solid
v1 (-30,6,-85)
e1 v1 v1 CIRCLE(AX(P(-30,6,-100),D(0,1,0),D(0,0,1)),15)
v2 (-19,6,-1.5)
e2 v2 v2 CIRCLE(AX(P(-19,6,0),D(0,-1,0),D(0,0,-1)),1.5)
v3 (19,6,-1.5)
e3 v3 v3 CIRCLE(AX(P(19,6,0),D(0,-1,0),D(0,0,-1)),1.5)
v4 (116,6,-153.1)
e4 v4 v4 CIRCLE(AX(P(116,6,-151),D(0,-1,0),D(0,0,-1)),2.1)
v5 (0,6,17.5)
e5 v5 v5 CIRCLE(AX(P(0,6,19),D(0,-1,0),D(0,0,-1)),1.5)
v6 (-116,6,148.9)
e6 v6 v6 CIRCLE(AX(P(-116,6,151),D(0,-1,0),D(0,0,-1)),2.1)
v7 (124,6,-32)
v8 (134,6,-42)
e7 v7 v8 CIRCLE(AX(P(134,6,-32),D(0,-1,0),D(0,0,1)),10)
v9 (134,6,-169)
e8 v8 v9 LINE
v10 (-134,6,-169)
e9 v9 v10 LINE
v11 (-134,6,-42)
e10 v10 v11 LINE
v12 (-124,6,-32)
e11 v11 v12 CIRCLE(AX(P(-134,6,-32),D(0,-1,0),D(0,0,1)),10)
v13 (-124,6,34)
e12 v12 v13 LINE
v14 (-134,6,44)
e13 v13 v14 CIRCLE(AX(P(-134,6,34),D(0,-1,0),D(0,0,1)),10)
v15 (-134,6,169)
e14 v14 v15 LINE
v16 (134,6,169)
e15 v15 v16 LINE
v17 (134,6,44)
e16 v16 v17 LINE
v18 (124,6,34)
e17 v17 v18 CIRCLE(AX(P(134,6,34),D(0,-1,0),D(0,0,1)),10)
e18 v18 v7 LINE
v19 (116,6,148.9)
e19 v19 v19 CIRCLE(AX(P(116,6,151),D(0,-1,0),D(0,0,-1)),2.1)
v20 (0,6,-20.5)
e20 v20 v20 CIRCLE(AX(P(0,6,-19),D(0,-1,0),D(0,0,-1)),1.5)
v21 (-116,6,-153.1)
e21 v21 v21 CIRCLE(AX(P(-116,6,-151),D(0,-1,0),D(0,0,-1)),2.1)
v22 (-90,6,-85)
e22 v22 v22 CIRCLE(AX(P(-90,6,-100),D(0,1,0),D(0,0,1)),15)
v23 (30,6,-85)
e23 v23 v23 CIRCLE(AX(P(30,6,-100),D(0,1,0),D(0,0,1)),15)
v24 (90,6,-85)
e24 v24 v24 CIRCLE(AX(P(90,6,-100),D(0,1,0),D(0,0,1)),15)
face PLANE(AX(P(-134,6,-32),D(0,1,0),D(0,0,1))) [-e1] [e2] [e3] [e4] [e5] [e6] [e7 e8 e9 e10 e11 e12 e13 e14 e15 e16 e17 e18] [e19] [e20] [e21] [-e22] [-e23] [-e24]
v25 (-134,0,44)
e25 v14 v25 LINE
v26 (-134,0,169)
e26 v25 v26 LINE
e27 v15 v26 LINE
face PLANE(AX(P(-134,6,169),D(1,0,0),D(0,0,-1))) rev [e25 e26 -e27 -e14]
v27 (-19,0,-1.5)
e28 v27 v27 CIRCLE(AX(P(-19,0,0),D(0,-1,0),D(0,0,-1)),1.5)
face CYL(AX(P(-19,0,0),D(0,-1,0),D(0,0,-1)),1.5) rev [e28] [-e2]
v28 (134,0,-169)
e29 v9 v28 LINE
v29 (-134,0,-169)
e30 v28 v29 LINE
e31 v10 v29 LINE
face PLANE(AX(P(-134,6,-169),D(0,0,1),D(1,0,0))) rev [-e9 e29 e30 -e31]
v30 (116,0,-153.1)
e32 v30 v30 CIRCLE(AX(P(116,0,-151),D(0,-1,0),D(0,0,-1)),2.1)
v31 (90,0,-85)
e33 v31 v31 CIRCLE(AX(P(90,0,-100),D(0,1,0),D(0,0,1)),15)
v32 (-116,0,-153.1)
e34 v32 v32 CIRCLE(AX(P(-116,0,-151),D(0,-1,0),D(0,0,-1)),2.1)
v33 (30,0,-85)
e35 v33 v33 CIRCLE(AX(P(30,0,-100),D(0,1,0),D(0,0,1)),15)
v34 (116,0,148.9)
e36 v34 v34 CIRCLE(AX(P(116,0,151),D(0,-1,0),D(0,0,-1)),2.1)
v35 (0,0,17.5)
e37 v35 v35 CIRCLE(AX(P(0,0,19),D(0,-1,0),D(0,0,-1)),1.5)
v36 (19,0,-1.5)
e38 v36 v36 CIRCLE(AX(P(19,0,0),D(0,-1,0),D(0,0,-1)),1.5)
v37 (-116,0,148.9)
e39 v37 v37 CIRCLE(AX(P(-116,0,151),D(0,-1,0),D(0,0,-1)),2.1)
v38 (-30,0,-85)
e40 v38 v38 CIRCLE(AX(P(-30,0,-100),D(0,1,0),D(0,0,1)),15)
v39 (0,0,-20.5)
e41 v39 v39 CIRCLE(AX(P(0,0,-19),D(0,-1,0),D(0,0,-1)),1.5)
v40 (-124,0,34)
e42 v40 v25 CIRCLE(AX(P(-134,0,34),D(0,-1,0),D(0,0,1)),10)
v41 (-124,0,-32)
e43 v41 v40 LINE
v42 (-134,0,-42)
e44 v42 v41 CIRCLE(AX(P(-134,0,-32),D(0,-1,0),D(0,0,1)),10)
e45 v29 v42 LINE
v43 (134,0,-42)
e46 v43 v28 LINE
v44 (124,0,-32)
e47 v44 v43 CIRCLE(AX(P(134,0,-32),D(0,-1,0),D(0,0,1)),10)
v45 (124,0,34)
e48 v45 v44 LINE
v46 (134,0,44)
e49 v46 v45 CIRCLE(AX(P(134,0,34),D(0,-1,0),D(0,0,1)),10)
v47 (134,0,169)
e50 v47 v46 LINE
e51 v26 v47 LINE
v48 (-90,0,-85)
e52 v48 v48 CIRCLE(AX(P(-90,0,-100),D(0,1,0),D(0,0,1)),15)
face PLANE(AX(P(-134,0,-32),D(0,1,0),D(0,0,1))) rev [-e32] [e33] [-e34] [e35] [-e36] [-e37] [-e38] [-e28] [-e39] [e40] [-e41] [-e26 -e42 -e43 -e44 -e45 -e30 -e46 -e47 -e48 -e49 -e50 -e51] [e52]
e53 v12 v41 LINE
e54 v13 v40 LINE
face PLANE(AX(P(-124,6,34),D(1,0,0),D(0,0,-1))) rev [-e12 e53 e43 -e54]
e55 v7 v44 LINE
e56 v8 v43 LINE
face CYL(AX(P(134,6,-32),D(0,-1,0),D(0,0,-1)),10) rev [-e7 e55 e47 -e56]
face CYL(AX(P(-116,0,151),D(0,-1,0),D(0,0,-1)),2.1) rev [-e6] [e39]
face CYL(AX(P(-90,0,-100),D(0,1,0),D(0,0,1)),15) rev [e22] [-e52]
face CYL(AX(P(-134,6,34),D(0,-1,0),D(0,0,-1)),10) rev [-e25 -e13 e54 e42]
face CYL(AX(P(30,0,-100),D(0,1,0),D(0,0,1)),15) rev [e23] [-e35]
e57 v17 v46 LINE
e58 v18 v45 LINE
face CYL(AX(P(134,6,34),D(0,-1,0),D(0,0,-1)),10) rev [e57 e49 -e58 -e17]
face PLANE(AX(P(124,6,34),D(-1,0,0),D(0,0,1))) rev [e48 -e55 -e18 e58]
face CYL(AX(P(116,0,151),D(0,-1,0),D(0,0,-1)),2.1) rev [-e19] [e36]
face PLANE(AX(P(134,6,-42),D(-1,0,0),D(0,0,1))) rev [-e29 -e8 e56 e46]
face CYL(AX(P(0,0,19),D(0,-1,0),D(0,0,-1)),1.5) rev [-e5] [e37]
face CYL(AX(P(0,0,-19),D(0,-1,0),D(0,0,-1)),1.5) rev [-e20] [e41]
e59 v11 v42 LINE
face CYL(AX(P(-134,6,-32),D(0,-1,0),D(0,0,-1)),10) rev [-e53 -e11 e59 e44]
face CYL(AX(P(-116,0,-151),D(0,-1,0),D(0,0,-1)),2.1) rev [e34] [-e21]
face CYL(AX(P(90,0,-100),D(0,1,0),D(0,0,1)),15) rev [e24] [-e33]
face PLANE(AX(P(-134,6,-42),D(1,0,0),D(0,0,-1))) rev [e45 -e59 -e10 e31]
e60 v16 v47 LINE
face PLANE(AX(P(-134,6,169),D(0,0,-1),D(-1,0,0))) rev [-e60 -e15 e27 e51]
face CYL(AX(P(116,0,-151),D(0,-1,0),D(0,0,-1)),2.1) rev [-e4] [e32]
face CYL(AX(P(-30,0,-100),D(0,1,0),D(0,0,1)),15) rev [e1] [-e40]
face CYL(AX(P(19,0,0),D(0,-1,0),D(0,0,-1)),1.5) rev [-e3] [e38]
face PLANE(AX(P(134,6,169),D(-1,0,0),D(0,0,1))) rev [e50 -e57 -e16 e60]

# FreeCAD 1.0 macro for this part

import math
import FreeCAD as App
import Part
import Sketcher

doc = App.newDocument("Part")
body = doc.addObject("PartDesign::Body", "Body")

# Sketch on XZ plane
sketch1 = body.newObject("Sketcher::SketchObject", "Sketch")
sketch1.AttachmentSupport = (doc.getObject("XZ_Plane"), [""])
sketch1.MapMode = "FlatFace"
sketch1.addGeometry([
    Part.LineSegment(App.Vector(-134, 169, 0), App.Vector(134, 169, 0)),  # 0
    Part.LineSegment(App.Vector(134, 169, 0), App.Vector(134, 44, 0)),  # 1
    Part.ArcOfCircle(Part.Circle(App.Vector(134, 34, 0), App.Vector(0, 0, 1), 10), math.radians(90), math.radians(180)),  # 2
    Part.LineSegment(App.Vector(124, 34, 0), App.Vector(124, -32, 0)),  # 3
    Part.ArcOfCircle(Part.Circle(App.Vector(134, -32, 0), App.Vector(0, 0, 1), 10), math.radians(180), math.radians(270)),  # 4
    Part.LineSegment(App.Vector(134, -42, 0), App.Vector(134, -169, 0)),  # 5
    Part.LineSegment(App.Vector(134, -169, 0), App.Vector(-134, -169, 0)),  # 6
    Part.LineSegment(App.Vector(-134, -169, 0), App.Vector(-134, -42, 0)),  # 7
    Part.ArcOfCircle(Part.Circle(App.Vector(-134, -32, 0), App.Vector(0, 0, 1), 10), math.radians(-90), math.radians(0)),  # 8
    Part.LineSegment(App.Vector(-124, -32, 0), App.Vector(-124, 34, 0)),  # 9
    Part.ArcOfCircle(Part.Circle(App.Vector(-134, 34, 0), App.Vector(0, 0, 1), 10), math.radians(0), math.radians(90)),  # 10
    Part.LineSegment(App.Vector(-134, 44, 0), App.Vector(-134, 169, 0)),  # 11
], False)
sketch1.addConstraint([
    Sketcher.Constraint("Coincident", 0, 2, 1, 1),
    Sketcher.Constraint("Coincident", 1, 2, 2, 1),
    Sketcher.Constraint("Tangent", 2, 2, 3, 1),
    Sketcher.Constraint("Tangent", 3, 2, 4, 1),
    Sketcher.Constraint("Coincident", 4, 2, 5, 1),
    Sketcher.Constraint("Coincident", 5, 2, 6, 1),
    Sketcher.Constraint("Coincident", 6, 2, 7, 1),
    Sketcher.Constraint("Coincident", 7, 2, 8, 1),
    Sketcher.Constraint("Tangent", 8, 2, 9, 1),
    Sketcher.Constraint("Tangent", 9, 2, 10, 1),
    Sketcher.Constraint("Coincident", 10, 2, 11, 1),
    Sketcher.Constraint("Coincident", 11, 2, 0, 1),
    Sketcher.Constraint("Horizontal", 0),
    Sketcher.Constraint("Vertical", 1),
    Sketcher.Constraint("Vertical", 3),
    Sketcher.Constraint("Vertical", 5),
    Sketcher.Constraint("Horizontal", 6),
    Sketcher.Constraint("Vertical", 7),
    Sketcher.Constraint("Vertical", 9),
    Sketcher.Constraint("Vertical", 11),
    Sketcher.Constraint("Equal", 2, 4),
    Sketcher.Constraint("Equal", 4, 8),
    Sketcher.Constraint("Equal", 8, 10),
    Sketcher.Constraint("Symmetric", 0, 2, 6, 2, -1, 1),
    Sketcher.Constraint("Symmetric", 4, 3, 8, 3, -2),
    Sketcher.Constraint("Symmetric", 1, 2, 10, 2, -2),
    Sketcher.Constraint("Vertical", 4, 3, 0, 2),
    Sketcher.Constraint("Vertical", 1, 2, 4, 2),
    Sketcher.Constraint("Radius", 2, 10.0),
    Sketcher.Constraint("DistanceX", 0, 1, 0, 2, 268.0),
    Sketcher.Constraint("DistanceY", 1, 2, 1, 1, 125.0),
    Sketcher.Constraint("DistanceY", 3, 2, 3, 1, 66.0),
    Sketcher.Constraint("DistanceY", 5, 2, 5, 1, 127.0),
])
pad1 = body.newObject("PartDesign::Pad", "Pad")
pad1.Profile = sketch1
pad1.Length = 6
pad1.Reversed = True

# Sketch on XZ plane
sketch2 = body.newObject("Sketcher::SketchObject", "Sketch001")
sketch2.AttachmentSupport = (doc.getObject("XZ_Plane"), [""])
sketch2.MapMode = "FlatFace"
sketch2.addGeometry([
    Part.Circle(App.Vector(-19, 0, 0), App.Vector(0, 0, 1), 1.5),
    Part.Circle(App.Vector(0, -19, 0), App.Vector(0, 0, 1), 1.5),
    Part.Circle(App.Vector(19, 0, 0), App.Vector(0, 0, 1), 1.5),
    Part.Circle(App.Vector(0, 19, 0), App.Vector(0, 0, 1), 1.5),
], False)
sketch2.addConstraint([
    Sketcher.Constraint("Equal", 0, 1),
    Sketcher.Constraint("Equal", 1, 2),
    Sketcher.Constraint("Equal", 2, 3),
    Sketcher.Constraint("Symmetric", 0, 3, 2, 3, -1, 1),
    Sketcher.Constraint("Symmetric", 1, 3, 3, 3, -1, 1),
    Sketcher.Constraint("PointOnObject", 0, 3, -1),
    Sketcher.Constraint("PointOnObject", 1, 3, -2),
    Sketcher.Constraint("Diameter", 0, 3.0),
    Sketcher.Constraint("DistanceX", 0, 3, -1, 1, 19.0),
    Sketcher.Constraint("DistanceY", 1, 3, -1, 1, 19.0),
])
doc.recompute()
hole = body.newObject("PartDesign::Hole", "Hole")
hole.Profile = sketch2
hole.ThreadType = "None"
hole.Diameter = 3
hole.DepthType = "ThroughAll"

# Sketch on XZ plane
sketch3 = body.newObject("Sketcher::SketchObject", "Sketch002")
sketch3.AttachmentSupport = (doc.getObject("XZ_Plane"), [""])
sketch3.MapMode = "FlatFace"
sketch3.AttachmentOffset = App.Placement(App.Vector(0, 0, -6), App.Rotation())
sketch3.addGeometry([
    Part.Circle(App.Vector(-90, -100, 0), App.Vector(0, 0, 1), 15),
    Part.Circle(App.Vector(-30, -100, 0), App.Vector(0, 0, 1), 15),
    Part.Circle(App.Vector(30, -100, 0), App.Vector(0, 0, 1), 15),
    Part.Circle(App.Vector(90, -100, 0), App.Vector(0, 0, 1), 15),
], False)
sketch3.addConstraint([
    Sketcher.Constraint("Equal", 0, 1),
    Sketcher.Constraint("Equal", 1, 2),
    Sketcher.Constraint("Equal", 2, 3),
    Sketcher.Constraint("Symmetric", 1, 3, 2, 3, -2),
    Sketcher.Constraint("Symmetric", 0, 3, 3, 3, -2),
    Sketcher.Constraint("Horizontal", 0, 3, 1, 3),
    Sketcher.Constraint("Diameter", 0, 30.0),
    Sketcher.Constraint("DistanceX", 0, 3, -1, 1, 90.0),
    Sketcher.Constraint("DistanceY", 0, 3, -1, 1, 100.0),
    Sketcher.Constraint("DistanceX", 1, 3, -1, 1, 30.0),
])
pocket1 = body.newObject("PartDesign::Pocket", "Pocket")
pocket1.Profile = sketch3
pocket1.Type = "ThroughAll"
pocket1.Reversed = True

# Sketch on XZ plane
sketch4 = body.newObject("Sketcher::SketchObject", "Sketch003")
sketch4.AttachmentSupport = (doc.getObject("XZ_Plane"), [""])
sketch4.MapMode = "FlatFace"
sketch4.addGeometry([
    Part.Circle(App.Vector(116, -151, 0), App.Vector(0, 0, 1), 2.1),
    Part.Circle(App.Vector(116, 151, 0), App.Vector(0, 0, 1), 2.1),
    Part.Circle(App.Vector(-116, -151, 0), App.Vector(0, 0, 1), 2.1),
    Part.Circle(App.Vector(-116, 151, 0), App.Vector(0, 0, 1), 2.1),
], False)
sketch4.addConstraint([
    Sketcher.Constraint("Equal", 0, 1),
    Sketcher.Constraint("Equal", 1, 2),
    Sketcher.Constraint("Equal", 2, 3),
    Sketcher.Constraint("Symmetric", 1, 3, 2, 3, -1, 1),
    Sketcher.Constraint("Symmetric", 0, 3, 3, 3, -1, 1),
    Sketcher.Constraint("Symmetric", 0, 3, 2, 3, -2),
    Sketcher.Constraint("Diameter", 0, 4.2),
    Sketcher.Constraint("DistanceX", -1, 1, 0, 3, 116.0),
    Sketcher.Constraint("DistanceY", 0, 3, -1, 1, 151.0),
])
doc.recompute()
hole2 = body.newObject("PartDesign::Hole", "Hole001")
hole2.Profile = sketch4
hole2.ThreadType = "None"
hole2.Diameter = 4.2
hole2.DepthType = "ThroughAll"

doc.recompute()
